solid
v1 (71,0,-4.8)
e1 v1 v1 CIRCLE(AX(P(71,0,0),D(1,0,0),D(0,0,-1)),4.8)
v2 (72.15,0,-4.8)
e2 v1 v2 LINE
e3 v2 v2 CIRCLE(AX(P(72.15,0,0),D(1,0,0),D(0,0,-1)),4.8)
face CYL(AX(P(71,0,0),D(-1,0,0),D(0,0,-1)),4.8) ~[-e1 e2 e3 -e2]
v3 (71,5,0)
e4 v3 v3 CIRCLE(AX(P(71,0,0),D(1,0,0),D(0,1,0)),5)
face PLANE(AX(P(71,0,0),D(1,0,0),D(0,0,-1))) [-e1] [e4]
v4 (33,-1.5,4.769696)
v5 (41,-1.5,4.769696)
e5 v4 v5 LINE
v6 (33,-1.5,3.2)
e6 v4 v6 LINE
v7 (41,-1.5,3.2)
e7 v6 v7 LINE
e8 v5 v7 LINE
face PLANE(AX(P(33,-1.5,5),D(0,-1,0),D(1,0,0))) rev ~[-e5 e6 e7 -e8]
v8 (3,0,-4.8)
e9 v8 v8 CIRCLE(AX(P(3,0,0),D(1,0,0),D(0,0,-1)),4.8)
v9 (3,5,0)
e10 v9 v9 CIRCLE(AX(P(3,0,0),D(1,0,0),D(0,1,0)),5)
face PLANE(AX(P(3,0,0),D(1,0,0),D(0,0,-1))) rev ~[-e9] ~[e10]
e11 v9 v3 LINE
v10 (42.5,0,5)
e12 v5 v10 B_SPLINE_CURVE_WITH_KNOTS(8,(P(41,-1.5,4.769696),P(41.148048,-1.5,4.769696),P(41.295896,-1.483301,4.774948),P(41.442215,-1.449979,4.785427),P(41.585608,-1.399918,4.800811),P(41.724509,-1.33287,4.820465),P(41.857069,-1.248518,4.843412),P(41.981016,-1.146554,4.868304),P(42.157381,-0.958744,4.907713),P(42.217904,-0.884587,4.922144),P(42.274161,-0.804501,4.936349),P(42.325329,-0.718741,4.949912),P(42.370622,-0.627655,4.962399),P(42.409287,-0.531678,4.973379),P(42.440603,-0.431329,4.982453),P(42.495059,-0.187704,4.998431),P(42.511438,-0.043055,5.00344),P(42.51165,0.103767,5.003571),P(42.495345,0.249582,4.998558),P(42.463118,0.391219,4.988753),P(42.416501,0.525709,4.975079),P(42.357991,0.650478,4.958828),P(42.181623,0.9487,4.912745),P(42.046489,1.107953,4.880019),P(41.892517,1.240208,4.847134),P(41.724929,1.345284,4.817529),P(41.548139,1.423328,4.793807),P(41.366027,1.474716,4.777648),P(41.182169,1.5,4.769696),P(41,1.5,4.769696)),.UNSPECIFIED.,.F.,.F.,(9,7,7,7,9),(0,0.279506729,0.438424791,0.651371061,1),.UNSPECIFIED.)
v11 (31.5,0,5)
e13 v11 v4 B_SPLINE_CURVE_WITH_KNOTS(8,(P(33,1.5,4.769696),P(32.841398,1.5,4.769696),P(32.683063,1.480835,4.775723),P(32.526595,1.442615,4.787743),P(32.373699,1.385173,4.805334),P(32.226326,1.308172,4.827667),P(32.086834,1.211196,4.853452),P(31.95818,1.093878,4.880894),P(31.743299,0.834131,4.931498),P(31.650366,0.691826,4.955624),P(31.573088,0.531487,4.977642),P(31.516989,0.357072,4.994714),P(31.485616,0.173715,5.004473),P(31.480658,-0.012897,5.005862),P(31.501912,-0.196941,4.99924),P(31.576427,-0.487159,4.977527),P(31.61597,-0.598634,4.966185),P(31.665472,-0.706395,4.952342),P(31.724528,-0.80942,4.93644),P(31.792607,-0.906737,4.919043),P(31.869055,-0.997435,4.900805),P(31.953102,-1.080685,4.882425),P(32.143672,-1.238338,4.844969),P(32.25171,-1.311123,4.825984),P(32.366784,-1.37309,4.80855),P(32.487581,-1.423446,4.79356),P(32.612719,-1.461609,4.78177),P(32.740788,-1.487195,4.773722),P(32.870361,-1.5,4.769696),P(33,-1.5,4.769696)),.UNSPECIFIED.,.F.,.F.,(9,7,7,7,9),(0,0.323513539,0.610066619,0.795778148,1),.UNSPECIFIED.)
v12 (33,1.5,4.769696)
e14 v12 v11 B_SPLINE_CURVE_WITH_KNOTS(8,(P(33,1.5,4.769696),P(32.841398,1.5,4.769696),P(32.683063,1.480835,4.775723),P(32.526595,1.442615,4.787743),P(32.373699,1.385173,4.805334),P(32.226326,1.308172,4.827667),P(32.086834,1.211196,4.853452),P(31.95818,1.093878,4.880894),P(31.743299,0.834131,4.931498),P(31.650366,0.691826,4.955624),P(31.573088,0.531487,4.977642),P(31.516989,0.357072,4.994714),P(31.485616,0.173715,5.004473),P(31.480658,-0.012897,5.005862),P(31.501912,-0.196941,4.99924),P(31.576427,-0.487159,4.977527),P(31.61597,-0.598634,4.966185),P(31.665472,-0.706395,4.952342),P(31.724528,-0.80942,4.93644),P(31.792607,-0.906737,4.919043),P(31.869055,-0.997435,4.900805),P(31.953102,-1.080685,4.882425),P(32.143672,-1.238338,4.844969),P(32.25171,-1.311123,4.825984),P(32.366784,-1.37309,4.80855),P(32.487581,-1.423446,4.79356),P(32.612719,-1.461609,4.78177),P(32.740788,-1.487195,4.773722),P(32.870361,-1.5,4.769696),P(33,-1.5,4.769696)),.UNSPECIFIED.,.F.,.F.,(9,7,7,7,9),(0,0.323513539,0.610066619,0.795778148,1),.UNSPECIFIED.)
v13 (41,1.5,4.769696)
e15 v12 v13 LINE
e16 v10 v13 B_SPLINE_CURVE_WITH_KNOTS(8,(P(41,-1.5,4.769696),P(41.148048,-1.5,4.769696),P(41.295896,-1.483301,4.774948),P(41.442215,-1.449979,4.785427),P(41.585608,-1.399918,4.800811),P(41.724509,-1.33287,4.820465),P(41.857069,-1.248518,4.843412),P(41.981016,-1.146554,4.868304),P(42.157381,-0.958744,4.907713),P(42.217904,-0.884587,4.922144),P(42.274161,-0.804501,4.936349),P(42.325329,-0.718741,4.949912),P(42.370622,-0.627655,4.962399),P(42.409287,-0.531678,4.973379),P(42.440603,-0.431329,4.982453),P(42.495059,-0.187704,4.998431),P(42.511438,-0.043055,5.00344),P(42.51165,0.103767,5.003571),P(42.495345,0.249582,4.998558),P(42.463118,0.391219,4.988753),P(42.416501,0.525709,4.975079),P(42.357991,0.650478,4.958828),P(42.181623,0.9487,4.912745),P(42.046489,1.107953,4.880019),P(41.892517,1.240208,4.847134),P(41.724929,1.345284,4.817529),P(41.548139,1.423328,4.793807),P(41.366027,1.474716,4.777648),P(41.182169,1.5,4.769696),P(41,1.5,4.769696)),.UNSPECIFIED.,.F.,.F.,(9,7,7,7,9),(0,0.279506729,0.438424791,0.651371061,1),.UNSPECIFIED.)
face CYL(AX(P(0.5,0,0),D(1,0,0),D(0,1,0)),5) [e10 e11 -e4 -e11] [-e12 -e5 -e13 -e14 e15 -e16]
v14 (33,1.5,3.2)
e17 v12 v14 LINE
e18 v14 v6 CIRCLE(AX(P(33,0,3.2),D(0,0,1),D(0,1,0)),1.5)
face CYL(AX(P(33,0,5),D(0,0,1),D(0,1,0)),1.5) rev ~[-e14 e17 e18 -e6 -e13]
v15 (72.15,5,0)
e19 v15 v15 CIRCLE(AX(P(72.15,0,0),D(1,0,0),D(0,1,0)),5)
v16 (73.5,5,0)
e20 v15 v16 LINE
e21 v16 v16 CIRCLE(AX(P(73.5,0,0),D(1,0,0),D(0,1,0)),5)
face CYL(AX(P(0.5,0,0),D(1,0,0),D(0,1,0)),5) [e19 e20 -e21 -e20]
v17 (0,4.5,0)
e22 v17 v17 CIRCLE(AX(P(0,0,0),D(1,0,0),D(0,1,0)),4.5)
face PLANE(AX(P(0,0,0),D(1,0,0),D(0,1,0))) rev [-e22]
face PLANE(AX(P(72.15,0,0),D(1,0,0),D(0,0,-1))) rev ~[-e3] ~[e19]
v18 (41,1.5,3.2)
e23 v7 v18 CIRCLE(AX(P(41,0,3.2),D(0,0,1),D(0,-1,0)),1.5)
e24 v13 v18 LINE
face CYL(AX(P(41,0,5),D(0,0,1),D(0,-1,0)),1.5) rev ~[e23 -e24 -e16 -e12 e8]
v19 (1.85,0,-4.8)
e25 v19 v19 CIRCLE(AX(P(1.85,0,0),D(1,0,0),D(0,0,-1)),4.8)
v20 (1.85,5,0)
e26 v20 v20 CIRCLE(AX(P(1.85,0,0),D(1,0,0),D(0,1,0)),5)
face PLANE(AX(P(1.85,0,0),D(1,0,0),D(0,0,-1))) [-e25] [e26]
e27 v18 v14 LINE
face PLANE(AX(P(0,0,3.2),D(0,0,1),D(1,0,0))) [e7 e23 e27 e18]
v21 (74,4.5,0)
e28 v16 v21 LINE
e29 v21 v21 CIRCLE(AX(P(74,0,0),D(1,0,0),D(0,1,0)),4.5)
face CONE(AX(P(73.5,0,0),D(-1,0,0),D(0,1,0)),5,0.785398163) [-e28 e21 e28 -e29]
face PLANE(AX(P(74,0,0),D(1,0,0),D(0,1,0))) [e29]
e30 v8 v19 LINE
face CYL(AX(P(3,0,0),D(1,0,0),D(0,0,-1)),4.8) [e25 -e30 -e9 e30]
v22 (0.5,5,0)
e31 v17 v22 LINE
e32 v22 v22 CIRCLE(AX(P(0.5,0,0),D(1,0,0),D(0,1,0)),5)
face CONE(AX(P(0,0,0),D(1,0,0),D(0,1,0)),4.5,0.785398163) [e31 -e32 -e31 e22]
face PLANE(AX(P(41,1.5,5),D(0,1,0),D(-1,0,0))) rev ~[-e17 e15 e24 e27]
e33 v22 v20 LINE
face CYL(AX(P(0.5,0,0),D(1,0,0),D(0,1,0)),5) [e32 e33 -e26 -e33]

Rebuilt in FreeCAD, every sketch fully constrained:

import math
import FreeCAD as App
import Part
import Sketcher

V = App.Vector


def add_polygon(sketch, points):
    """Adds a closed chain of lines whose ends are joined by coincident constraints."""
    first, n = sketch.GeometryCount, len(points)
    for a, b in zip(points, points[1:] + points[:1]):
        sketch.addGeometry(Part.LineSegment(App.Vector(*a, 0), App.Vector(*b, 0)), False)
    for i in range(n):
        sketch.addConstraint(Sketcher.Constraint("Coincident", first + i, 2, first + (i + 1) % n, 1))

doc = App.newDocument("Part")
body = doc.addObject("PartDesign::Body", "Body")

# Sketch on XY plane
sketch1 = body.newObject("Sketcher::SketchObject", "Sketch")
sketch1.AttachmentSupport = (doc.getObject("XY_Plane"), [""])
sketch1.MapMode = "FlatFace"
add_polygon(sketch1, [(0, 0), (74, 0), (74, 4.5), (73.5, 5), (0.5, 5), (0, 4.5)])  # lines 0-5
sketch1.addConstraint([
    Sketcher.Constraint("Horizontal", 0),
    Sketcher.Constraint("Vertical", 1),
    Sketcher.Constraint("Horizontal", 3),
    Sketcher.Constraint("Vertical", 5),
    Sketcher.Constraint("Coincident", 5, 2, -1, 1),
    Sketcher.Constraint("Perpendicular", 2, 4),
    Sketcher.Constraint("Horizontal", 1, 2, 4, 2),
    Sketcher.Constraint("Equal", 2, 4),
    Sketcher.Constraint("DistanceX", 0, 1, 0, 2, 74.0),
    Sketcher.Constraint("DistanceX", 3, 2, 3, 1, 73.0),
    Sketcher.Constraint("DistanceY", 1, 1, 1, 2, 4.5),
])
revolution = body.newObject("PartDesign::Revolution", "Revolution")
revolution.Profile = sketch1
revolution.ReferenceAxis = (sketch1, ["H_Axis"])
revolution.Angle = 360

# Sketch on XY plane
sketch2 = body.newObject("Sketcher::SketchObject", "Sketch001")
sketch2.AttachmentSupport = (doc.getObject("XY_Plane"), [""])
sketch2.MapMode = "FlatFace"
sketch2.AttachmentOffset = App.Placement(V(0, 0, 5), App.Rotation())
sketch2.addGeometry([
    Part.LineSegment(V(41, 1.5, 0), V(33, 1.5, 0)),
    Part.ArcOfCircle(Part.Circle(V(33, 0, 0), V(0, 0, 1), 1.5), math.radians(90), math.radians(270)),
    Part.LineSegment(V(33, -1.5, 0), V(41, -1.5, 0)),
    Part.ArcOfCircle(Part.Circle(V(41, 0, 0), V(0, 0, 1), 1.5), math.radians(-90), math.radians(90)),
], False)
sketch2.addConstraint([
    Sketcher.Constraint("Tangent", 0, 2, 1, 1),
    Sketcher.Constraint("Tangent", 1, 2, 2, 1),
    Sketcher.Constraint("Tangent", 2, 2, 3, 1),
    Sketcher.Constraint("Tangent", 3, 2, 0, 1),
    Sketcher.Constraint("Horizontal", 0),
    Sketcher.Constraint("Horizontal", 2),
    Sketcher.Constraint("PointOnObject", 1, 3, -1),
    Sketcher.Constraint("Radius", 1, 1.5),
    Sketcher.Constraint("DistanceX", 0, 2, 0, 1, 8.0),
    Sketcher.Constraint("DistanceX", -1, 1, 1, 3, 33.0),
])
pocket1 = body.newObject("PartDesign::Pocket", "Pocket")
pocket1.Profile = sketch2
pocket1.Length = 1.8

# Sketch on YZ plane
sketch3 = body.newObject("Sketcher::SketchObject", "Sketch002")
sketch3.AttachmentSupport = (doc.getObject("YZ_Plane"), [""])
sketch3.MapMode = "FlatFace"
sketch3.AttachmentOffset = App.Placement(V(0, 0, 3), App.Rotation())
sketch3.addGeometry([
    Part.Circle(V(0, 0, 0), V(0, 0, 1), 10),
    Part.Circle(V(0, 0, 0), V(0, 0, 1), 4.8),
], False)
sketch3.addConstraint([
    Sketcher.Constraint("Coincident", 0, 3, -1, 1),
    Sketcher.Constraint("Coincident", 1, 3, -1, 1),
    Sketcher.Constraint("Diameter", 0, 20.0),
    Sketcher.Constraint("Diameter", 1, 9.6),
])
pocket2 = body.newObject("PartDesign::Pocket", "Pocket001")
pocket2.Profile = sketch3
pocket2.Length = 1.15

# Sketch on YZ plane
sketch4 = body.newObject("Sketcher::SketchObject", "Sketch003")
sketch4.AttachmentSupport = (doc.getObject("YZ_Plane"), [""])
sketch4.MapMode = "FlatFace"
sketch4.AttachmentOffset = App.Placement(V(0, 0, 71), App.Rotation())
sketch4.addGeometry([
    Part.Circle(V(0, 0, 0), V(0, 0, 1), 10),
    Part.Circle(V(0, 0, 0), V(0, 0, 1), 4.8),
], False)
sketch4.addConstraint([
    Sketcher.Constraint("Coincident", 0, 3, -1, 1),
    Sketcher.Constraint("Coincident", 1, 3, -1, 1),
    Sketcher.Constraint("Diameter", 0, 20.0),
    Sketcher.Constraint("Diameter", 1, 9.6),
])
pocket3 = body.newObject("PartDesign::Pocket", "Pocket002")
pocket3.Profile = sketch4
pocket3.Length = 1.15
pocket3.Reversed = True

doc.recompute()
